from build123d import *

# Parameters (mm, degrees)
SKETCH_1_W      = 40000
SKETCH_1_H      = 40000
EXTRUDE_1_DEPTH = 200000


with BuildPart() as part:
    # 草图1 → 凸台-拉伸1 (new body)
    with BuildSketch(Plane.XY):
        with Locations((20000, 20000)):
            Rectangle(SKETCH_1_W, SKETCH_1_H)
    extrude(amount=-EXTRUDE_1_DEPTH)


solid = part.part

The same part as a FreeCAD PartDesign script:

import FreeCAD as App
import Part
import Sketcher


def add_polygon(sketch, points):
    """Adds a closed chain of lines whose ends are joined by coincident constraints."""
    first, n = sketch.GeometryCount, len(points)
    for a, b in zip(points, points[1:] + points[:1]):
        sketch.addGeometry(Part.LineSegment(App.Vector(*a, 0), App.Vector(*b, 0)), False)
    for i in range(n):
        sketch.addConstraint(Sketcher.Constraint("Coincident", first + i, 2, first + (i + 1) % n, 1))

doc = App.newDocument("Part")
body = doc.addObject("PartDesign::Body", "Body")

sketch1 = body.newObject("Sketcher::SketchObject", "Sketch")
sketch1.AttachmentSupport = (doc.getObject("XY_Plane"), [""])
sketch1.MapMode = "FlatFace"
add_polygon(sketch1, [(0, 40000), (0, 0), (40000, 0), (40000, 40000)])
sketch1.addConstraint(Sketcher.Constraint("Vertical", 0))
sketch1.addConstraint(Sketcher.Constraint("Horizontal", 1))
sketch1.addConstraint(Sketcher.Constraint("Vertical", 2))
sketch1.addConstraint(Sketcher.Constraint("Horizontal", 3))
sketch1.addConstraint(Sketcher.Constraint("Coincident", 0, 2, -1, 1))
sketch1.addConstraint(Sketcher.Constraint("Equal", 3, 0))
sketch1.addConstraint(Sketcher.Constraint("DistanceX", 1, 1, 1, 2, 40000.0))
pad1 = body.newObject("PartDesign::Pad", "Pad")
pad1.Profile = sketch1
pad1.Length = 200000
pad1.Reversed = True

doc.recompute()
